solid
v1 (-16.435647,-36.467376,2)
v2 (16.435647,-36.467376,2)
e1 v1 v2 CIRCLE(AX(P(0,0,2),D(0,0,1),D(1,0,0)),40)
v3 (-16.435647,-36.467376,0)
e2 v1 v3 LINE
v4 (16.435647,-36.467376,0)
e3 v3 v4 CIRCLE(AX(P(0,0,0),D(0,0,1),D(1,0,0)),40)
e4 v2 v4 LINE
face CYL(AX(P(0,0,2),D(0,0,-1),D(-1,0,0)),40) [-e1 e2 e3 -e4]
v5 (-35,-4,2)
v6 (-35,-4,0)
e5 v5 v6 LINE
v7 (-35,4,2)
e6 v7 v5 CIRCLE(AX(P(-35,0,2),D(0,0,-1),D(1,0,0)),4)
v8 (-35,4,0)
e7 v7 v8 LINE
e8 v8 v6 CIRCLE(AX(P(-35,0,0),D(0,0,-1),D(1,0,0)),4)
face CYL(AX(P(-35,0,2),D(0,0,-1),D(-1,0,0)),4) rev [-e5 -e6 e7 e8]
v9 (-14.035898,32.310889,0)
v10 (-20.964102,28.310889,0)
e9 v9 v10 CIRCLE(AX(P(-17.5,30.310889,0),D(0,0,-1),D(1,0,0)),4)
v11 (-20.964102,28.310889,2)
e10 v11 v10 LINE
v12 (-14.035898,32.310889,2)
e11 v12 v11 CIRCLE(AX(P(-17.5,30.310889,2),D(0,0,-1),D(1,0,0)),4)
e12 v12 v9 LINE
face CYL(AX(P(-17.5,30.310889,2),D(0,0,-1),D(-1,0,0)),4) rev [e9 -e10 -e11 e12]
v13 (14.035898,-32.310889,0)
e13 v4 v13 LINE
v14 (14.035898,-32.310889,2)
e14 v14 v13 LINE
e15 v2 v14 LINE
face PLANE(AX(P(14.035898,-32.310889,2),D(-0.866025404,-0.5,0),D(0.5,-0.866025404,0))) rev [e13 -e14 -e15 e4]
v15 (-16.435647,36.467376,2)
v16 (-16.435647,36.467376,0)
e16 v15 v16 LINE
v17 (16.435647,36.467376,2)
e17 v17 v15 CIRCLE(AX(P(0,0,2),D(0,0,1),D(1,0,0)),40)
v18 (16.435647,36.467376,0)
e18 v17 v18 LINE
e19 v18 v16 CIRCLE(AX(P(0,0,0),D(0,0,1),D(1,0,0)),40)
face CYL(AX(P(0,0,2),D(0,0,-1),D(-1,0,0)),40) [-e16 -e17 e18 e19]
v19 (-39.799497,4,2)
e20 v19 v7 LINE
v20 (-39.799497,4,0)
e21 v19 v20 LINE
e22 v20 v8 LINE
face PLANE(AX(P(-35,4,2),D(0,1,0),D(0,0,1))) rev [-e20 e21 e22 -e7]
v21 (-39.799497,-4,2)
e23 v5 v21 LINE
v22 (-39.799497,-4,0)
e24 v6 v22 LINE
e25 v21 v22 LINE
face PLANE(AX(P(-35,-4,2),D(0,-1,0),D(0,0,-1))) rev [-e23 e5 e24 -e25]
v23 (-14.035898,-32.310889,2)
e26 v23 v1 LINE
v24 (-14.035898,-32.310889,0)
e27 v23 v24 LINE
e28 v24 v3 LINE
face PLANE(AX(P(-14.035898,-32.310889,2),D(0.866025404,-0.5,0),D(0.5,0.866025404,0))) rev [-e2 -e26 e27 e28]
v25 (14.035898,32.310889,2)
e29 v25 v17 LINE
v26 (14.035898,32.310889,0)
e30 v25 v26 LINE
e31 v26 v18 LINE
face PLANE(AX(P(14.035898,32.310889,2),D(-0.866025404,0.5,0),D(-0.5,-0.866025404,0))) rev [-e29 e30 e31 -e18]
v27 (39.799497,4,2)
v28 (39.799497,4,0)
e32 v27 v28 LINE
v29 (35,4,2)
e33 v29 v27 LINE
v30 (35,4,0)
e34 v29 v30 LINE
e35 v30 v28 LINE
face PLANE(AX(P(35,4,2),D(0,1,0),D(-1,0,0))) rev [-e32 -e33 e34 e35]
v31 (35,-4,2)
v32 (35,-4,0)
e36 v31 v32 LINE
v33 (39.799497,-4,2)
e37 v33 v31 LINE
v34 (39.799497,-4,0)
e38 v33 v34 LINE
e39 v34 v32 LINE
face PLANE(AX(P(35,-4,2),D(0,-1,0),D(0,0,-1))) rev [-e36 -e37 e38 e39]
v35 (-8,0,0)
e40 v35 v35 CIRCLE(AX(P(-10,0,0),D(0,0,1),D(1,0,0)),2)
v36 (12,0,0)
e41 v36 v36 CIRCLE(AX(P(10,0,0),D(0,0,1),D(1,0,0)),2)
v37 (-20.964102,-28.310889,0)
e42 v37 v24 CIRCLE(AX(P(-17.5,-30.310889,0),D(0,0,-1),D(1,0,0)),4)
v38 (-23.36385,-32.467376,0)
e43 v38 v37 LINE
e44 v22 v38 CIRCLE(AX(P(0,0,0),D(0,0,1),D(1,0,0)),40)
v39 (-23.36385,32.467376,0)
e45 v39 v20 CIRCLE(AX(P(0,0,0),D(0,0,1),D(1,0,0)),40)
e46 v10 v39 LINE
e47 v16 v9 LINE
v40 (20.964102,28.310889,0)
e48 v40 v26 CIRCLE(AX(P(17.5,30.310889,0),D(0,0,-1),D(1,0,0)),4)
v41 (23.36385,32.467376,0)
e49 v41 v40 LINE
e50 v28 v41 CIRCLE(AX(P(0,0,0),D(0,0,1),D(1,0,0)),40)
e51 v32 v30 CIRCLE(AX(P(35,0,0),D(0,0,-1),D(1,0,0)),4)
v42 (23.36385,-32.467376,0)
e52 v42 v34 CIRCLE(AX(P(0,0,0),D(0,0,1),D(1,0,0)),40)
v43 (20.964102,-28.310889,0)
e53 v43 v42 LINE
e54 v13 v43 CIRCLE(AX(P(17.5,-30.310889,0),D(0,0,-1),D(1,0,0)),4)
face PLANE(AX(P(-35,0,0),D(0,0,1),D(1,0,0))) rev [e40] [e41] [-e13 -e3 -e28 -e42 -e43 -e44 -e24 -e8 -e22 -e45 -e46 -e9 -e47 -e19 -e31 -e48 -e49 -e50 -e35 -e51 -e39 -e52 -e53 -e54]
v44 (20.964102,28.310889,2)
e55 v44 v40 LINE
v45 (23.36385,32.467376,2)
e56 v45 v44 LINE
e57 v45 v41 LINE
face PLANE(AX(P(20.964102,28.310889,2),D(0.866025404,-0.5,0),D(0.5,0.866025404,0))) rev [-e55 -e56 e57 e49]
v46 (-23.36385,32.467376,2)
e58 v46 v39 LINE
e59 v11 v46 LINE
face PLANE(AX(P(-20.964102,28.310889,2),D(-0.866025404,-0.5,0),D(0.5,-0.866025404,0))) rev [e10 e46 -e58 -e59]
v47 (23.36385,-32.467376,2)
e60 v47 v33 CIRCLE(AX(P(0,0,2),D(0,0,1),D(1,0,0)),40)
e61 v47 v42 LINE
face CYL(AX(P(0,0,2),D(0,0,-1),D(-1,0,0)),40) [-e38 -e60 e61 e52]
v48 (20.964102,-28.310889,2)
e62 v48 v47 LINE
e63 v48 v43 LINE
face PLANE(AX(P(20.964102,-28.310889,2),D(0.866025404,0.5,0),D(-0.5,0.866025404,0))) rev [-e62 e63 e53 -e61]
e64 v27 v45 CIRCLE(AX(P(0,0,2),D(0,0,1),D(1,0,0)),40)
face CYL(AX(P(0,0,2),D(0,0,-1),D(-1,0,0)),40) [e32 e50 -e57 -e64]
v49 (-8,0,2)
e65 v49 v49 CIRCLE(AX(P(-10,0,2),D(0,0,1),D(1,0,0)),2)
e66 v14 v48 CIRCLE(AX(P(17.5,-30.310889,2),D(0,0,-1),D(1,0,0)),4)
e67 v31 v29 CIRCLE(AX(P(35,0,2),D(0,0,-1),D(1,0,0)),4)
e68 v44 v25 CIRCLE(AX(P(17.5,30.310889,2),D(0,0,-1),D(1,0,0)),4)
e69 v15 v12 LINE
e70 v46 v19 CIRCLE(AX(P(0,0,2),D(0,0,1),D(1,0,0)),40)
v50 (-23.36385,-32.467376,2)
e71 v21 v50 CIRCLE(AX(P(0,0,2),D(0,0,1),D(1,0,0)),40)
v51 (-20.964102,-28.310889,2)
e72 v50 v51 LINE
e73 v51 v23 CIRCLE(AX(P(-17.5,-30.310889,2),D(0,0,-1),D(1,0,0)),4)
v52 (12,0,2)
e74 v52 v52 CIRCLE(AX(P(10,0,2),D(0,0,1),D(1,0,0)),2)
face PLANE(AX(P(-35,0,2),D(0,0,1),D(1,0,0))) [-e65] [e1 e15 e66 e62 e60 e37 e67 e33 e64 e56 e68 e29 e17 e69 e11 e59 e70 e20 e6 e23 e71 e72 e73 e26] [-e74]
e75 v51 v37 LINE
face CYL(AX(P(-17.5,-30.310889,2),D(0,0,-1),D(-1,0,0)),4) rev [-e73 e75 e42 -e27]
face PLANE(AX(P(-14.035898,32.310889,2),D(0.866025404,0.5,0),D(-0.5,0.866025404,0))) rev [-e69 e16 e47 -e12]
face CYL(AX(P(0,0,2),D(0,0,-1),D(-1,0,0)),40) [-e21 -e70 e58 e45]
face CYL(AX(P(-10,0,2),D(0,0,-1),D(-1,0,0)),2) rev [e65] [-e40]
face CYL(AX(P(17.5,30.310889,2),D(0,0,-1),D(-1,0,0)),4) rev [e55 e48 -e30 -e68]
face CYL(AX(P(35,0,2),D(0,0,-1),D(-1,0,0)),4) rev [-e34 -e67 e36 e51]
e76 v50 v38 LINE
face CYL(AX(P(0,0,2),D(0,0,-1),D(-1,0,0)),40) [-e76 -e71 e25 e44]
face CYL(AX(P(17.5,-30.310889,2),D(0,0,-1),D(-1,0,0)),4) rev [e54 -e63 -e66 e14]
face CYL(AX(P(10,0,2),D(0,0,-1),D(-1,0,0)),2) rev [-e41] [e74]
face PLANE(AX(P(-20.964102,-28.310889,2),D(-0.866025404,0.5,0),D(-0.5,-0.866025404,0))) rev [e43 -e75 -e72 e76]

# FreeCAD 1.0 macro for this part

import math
import FreeCAD as App
import Part
import Sketcher
from FreeCAD import Vector
Q = App.Units.Quantity

doc = App.newDocument("Part")
body = doc.addObject("PartDesign::Body", "Body")

sketch1 = body.newObject("Sketcher::SketchObject", "Sketch")
sketch1.AttachmentSupport = (doc.getObject("XY_Plane"), [""])
sketch1.MapMode = "FlatFace"
sketch1.addGeometry(Part.LineSegment(Vector(-39.8, 4, 0), Vector(-35, 4, 0)), False)
sketch1.addGeometry(Part.ArcOfCircle(Part.Circle(Vector(-35, 0, 0), Vector(0, 0, 1), 4), math.radians(-90), math.radians(90)), False)
sketch1.addGeometry(Part.LineSegment(Vector(-35, -4, 0), Vector(-39.8, -4, 0)), False)
sketch1.addGeometry(Part.ArcOfCircle(Part.Circle(Vector(0, 0, 0), Vector(0, 0, 1), 40), math.radians(-174), math.radians(-126)), False)
sketch1.addGeometry(Part.LineSegment(Vector(-23.4, -32.5, 0), Vector(-21, -28.3, 0)), False)
sketch1.addGeometry(Part.ArcOfCircle(Part.Circle(Vector(-17.5, -30.3, 0), Vector(0, 0, 1), 4), math.radians(-30), math.radians(150)), False)
sketch1.addGeometry(Part.LineSegment(Vector(-14, -32.3, 0), Vector(-16.4, -36.5, 0)), False)
sketch1.addGeometry(Part.ArcOfCircle(Part.Circle(Vector(0, 0, 0), Vector(0, 0, 1), 40), math.radians(-114), math.radians(-66)), False)
sketch1.addGeometry(Part.LineSegment(Vector(16.4, -36.5, 0), Vector(14, -32.3, 0)), False)
sketch1.addGeometry(Part.ArcOfCircle(Part.Circle(Vector(17.5, -30.3, 0), Vector(0, 0, 1), 4), math.radians(30), math.radians(210)), False)
sketch1.addGeometry(Part.LineSegment(Vector(21, -28.3, 0), Vector(23.4, -32.5, 0)), False)
sketch1.addGeometry(Part.ArcOfCircle(Part.Circle(Vector(0, 0, 0), Vector(0, 0, 1), 40), math.radians(-54), math.radians(-6)), False)
sketch1.addGeometry(Part.LineSegment(Vector(39.8, -4, 0), Vector(35, -4, 0)), False)
sketch1.addGeometry(Part.ArcOfCircle(Part.Circle(Vector(35, 0, 0), Vector(0, 0, 1), 4), math.radians(90), math.radians(270)), False)
sketch1.addGeometry(Part.LineSegment(Vector(35, 4, 0), Vector(39.8, 4, 0)), False)
sketch1.addGeometry(Part.ArcOfCircle(Part.Circle(Vector(0, 0, 0), Vector(0, 0, 1), 40), math.radians(6), math.radians(54)), False)
sketch1.addGeometry(Part.LineSegment(Vector(23.4, 32.5, 0), Vector(21, 28.3, 0)), False)
sketch1.addGeometry(Part.ArcOfCircle(Part.Circle(Vector(17.5, 30.3, 0), Vector(0, 0, 1), 4), math.radians(150), math.radians(330)), False)
sketch1.addGeometry(Part.LineSegment(Vector(14, 32.3, 0), Vector(16.4, 36.5, 0)), False)
sketch1.addGeometry(Part.ArcOfCircle(Part.Circle(Vector(0, 0, 0), Vector(0, 0, 1), 40), math.radians(66), math.radians(114)), False)
sketch1.addGeometry(Part.LineSegment(Vector(-16.4, 36.5, 0), Vector(-14, 32.3, 0)), False)
sketch1.addGeometry(Part.ArcOfCircle(Part.Circle(Vector(-17.5, 30.3, 0), Vector(0, 0, 1), 4), math.radians(-150), math.radians(30)), False)
sketch1.addGeometry(Part.LineSegment(Vector(-21, 28.3, 0), Vector(-23.4, 32.5, 0)), False)
sketch1.addGeometry(Part.ArcOfCircle(Part.Circle(Vector(0, 0, 0), Vector(0, 0, 1), 40), math.radians(126), math.radians(174)), False)
sketch1.addGeometry(Part.Circle(Vector(10, 0, 0), Vector(0, 0, 1), 2), False)
sketch1.addGeometry(Part.Circle(Vector(-10, 0, 0), Vector(0, 0, 1), 2), False)
sketch1.addConstraint(Sketcher.Constraint("Tangent", 0, 2, 1, 2))
sketch1.addConstraint(Sketcher.Constraint("Tangent", 1, 1, 2, 1))
sketch1.addConstraint(Sketcher.Constraint("Coincident", 2, 2, 3, 1))
sketch1.addConstraint(Sketcher.Constraint("Coincident", 3, 2, 4, 1))
sketch1.addConstraint(Sketcher.Constraint("Tangent", 4, 2, 5, 2))
sketch1.addConstraint(Sketcher.Constraint("Tangent", 5, 1, 6, 1))
sketch1.addConstraint(Sketcher.Constraint("Coincident", 6, 2, 7, 1))
sketch1.addConstraint(Sketcher.Constraint("Coincident", 7, 2, 8, 1))
sketch1.addConstraint(Sketcher.Constraint("Tangent", 8, 2, 9, 2))
sketch1.addConstraint(Sketcher.Constraint("Tangent", 9, 1, 10, 1))
sketch1.addConstraint(Sketcher.Constraint("Coincident", 10, 2, 11, 1))
sketch1.addConstraint(Sketcher.Constraint("Coincident", 11, 2, 12, 1))
sketch1.addConstraint(Sketcher.Constraint("Tangent", 12, 2, 13, 2))
sketch1.addConstraint(Sketcher.Constraint("Tangent", 13, 1, 14, 1))
sketch1.addConstraint(Sketcher.Constraint("Coincident", 14, 2, 15, 1))
sketch1.addConstraint(Sketcher.Constraint("Coincident", 15, 2, 16, 1))
sketch1.addConstraint(Sketcher.Constraint("Tangent", 16, 2, 17, 2))
sketch1.addConstraint(Sketcher.Constraint("Tangent", 17, 1, 18, 1))
sketch1.addConstraint(Sketcher.Constraint("Coincident", 18, 2, 19, 1))
sketch1.addConstraint(Sketcher.Constraint("Coincident", 19, 2, 20, 1))
sketch1.addConstraint(Sketcher.Constraint("Tangent", 20, 2, 21, 2))
sketch1.addConstraint(Sketcher.Constraint("Tangent", 21, 1, 22, 1))
sketch1.addConstraint(Sketcher.Constraint("Coincident", 22, 2, 23, 1))
sketch1.addConstraint(Sketcher.Constraint("Coincident", 23, 2, 0, 1))
sketch1.addConstraint(Sketcher.Constraint("Horizontal", 0))
sketch1.addConstraint(Sketcher.Constraint("Horizontal", 2))
sketch1.addConstraint(Sketcher.Constraint("Horizontal", 12))
sketch1.addConstraint(Sketcher.Constraint("Horizontal", 14))
sketch1.addConstraint(Sketcher.Constraint("Coincident", 3, 3, -1, 1))
sketch1.addConstraint(Sketcher.Constraint("Coincident", 7, 3, -1, 1))
sketch1.addConstraint(Sketcher.Constraint("Coincident", 11, 3, -1, 1))
sketch1.addConstraint(Sketcher.Constraint("Coincident", 15, 3, -1, 1))
sketch1.addConstraint(Sketcher.Constraint("Coincident", 19, 3, -1, 1))
sketch1.addConstraint(Sketcher.Constraint("Coincident", 23, 3, -1, 1))
sketch1.addConstraint(Sketcher.Constraint("Equal", 1, 5))
sketch1.addConstraint(Sketcher.Constraint("Equal", 3, 7))
sketch1.addConstraint(Sketcher.Constraint("Equal", 5, 9))
sketch1.addConstraint(Sketcher.Constraint("Equal", 7, 11))
sketch1.addConstraint(Sketcher.Constraint("Equal", 9, 13))
sketch1.addConstraint(Sketcher.Constraint("Equal", 11, 15))
sketch1.addConstraint(Sketcher.Constraint("Equal", 13, 17))
sketch1.addConstraint(Sketcher.Constraint("Equal", 15, 19))
sketch1.addConstraint(Sketcher.Constraint("Equal", 17, 21))
sketch1.addConstraint(Sketcher.Constraint("Equal", 19, 23))
sketch1.addConstraint(Sketcher.Constraint("Equal", 24, 25))
sketch1.addConstraint(Sketcher.Constraint("Symmetric", 1, 3, 13, 3, -1, 1))
sketch1.addConstraint(Sketcher.Constraint("Symmetric", 5, 3, 17, 3, -1, 1))
sketch1.addConstraint(Sketcher.Constraint("Symmetric", 9, 3, 21, 3, -1, 1))
sketch1.addConstraint(Sketcher.Constraint("Symmetric", 24, 3, 25, 3, -1, 1))
sketch1.addConstraint(Sketcher.Constraint("Symmetric", 5, 3, 9, 3, -2))
sketch1.addConstraint(Sketcher.Constraint("PointOnObject", 1, 3, -1))
sketch1.addConstraint(Sketcher.Constraint("PointOnObject", 24, 3, -1))
sketch1.addConstraint(Sketcher.Constraint("Parallel", 4, 6))
sketch1.addConstraint(Sketcher.Constraint("Parallel", 8, 10))
sketch1.addConstraint(Sketcher.Constraint("Parallel", 6, 16))
sketch1.addConstraint(Sketcher.Constraint("Parallel", 16, 18))
sketch1.addConstraint(Sketcher.Constraint("Parallel", 10, 20))
sketch1.addConstraint(Sketcher.Constraint("Parallel", 20, 22))
sketch1.addConstraint(Sketcher.Constraint("Horizontal", 6, 2, 7, 2))
sketch1.addConstraint(Sketcher.Constraint("Equal", 4, 6))
sketch1.addConstraint(Sketcher.Constraint("Diameter", 24, 4.0))
sketch1.addConstraint(Sketcher.Constraint("Radius", 1, 4.0))
sketch1.addConstraint(Sketcher.Constraint("Radius", 3, 40.0))
sketch1.addConstraint(Sketcher.Constraint("Angle", 4, Q("60 deg")))
sketch1.addConstraint(Sketcher.Constraint("DistanceX", 1, 3, -1, 1, 35.0))
sketch1.addConstraint(Sketcher.Constraint("DistanceX", -1, 1, 24, 3, 10.0))
sketch1.addConstraint(Sketcher.Constraint("DistanceX", 5, 3, 9, 3, 35.0))
pad1 = body.newObject("PartDesign::Pad", "Pad")
pad1.Profile = sketch1
pad1.Length = 2

doc.recompute()
